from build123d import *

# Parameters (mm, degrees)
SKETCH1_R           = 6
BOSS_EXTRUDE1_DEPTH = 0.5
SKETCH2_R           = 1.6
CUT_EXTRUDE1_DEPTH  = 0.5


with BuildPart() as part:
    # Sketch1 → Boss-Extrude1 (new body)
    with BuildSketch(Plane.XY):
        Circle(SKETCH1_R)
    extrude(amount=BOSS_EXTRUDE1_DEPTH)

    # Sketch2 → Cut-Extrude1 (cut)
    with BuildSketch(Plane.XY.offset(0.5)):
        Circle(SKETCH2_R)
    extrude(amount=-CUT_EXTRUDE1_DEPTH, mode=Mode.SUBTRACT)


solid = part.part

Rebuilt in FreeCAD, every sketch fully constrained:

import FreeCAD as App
import Part
import Sketcher
from FreeCAD import Vector

doc = App.newDocument("Part")
params = doc.addObject("Spreadsheet::Sheet", "Params")
for row, (alias, value) in enumerate([
    ("sketch1_diameter", "12 mm"),
    ("pad1_length", "0.5 mm"),
    ("sketch2_diameter", "3.2 mm"),
    ("pocket1_length", "0.5 mm"),
], start=1):
    params.set(f"A{row}", alias)
    params.set(f"B{row}", "=" + value)
    params.setAlias(f"B{row}", alias)

body = doc.addObject("PartDesign::Body", "Body")

sketch1 = doc.addObject("Sketcher::SketchObject", "Sketch")
body.addObject(sketch1)
sketch1.AttachmentSupport = (doc.XY_Plane, [""])
sketch1.MapMode = "FlatFace"
sketch1.addGeometry(Part.Circle(Vector(0, 0, 0), Vector(0, 0, 1), 6), False)
sketch1.addConstraint(Sketcher.Constraint("Coincident", 0, 3, -1, 1))
sketch1.addConstraint(Sketcher.Constraint("Diameter", 0, 12.0))
sketch1.setExpression("Constraints[1]", "Params.sketch1_diameter")
pad1 = doc.addObject("PartDesign::Pad", "Pad")
body.addObject(pad1)
pad1.Profile = sketch1
pad1.setExpression("Length", "Params.pad1_length")

sketch2 = doc.addObject("Sketcher::SketchObject", "Sketch001")
body.addObject(sketch2)
sketch2.AttachmentSupport = (doc.XY_Plane, [""])
sketch2.MapMode = "FlatFace"
sketch2.AttachmentOffset = App.Placement(Vector(0, 0, 0.5), App.Rotation())
sketch2.addGeometry(Part.Circle(Vector(0, 0, 0), Vector(0, 0, 1), 1.6), False)
sketch2.addConstraint(Sketcher.Constraint("Coincident", 0, 3, -1, 1))
sketch2.addConstraint(Sketcher.Constraint("Diameter", 0, 3.2))
sketch2.setExpression("Constraints[1]", "Params.sketch2_diameter")
pocket1 = doc.addObject("PartDesign::Pocket", "Pocket")
body.addObject(pocket1)
pocket1.Profile = sketch2
pocket1.setExpression("Length", "Params.pocket1_length")

doc.recompute()
